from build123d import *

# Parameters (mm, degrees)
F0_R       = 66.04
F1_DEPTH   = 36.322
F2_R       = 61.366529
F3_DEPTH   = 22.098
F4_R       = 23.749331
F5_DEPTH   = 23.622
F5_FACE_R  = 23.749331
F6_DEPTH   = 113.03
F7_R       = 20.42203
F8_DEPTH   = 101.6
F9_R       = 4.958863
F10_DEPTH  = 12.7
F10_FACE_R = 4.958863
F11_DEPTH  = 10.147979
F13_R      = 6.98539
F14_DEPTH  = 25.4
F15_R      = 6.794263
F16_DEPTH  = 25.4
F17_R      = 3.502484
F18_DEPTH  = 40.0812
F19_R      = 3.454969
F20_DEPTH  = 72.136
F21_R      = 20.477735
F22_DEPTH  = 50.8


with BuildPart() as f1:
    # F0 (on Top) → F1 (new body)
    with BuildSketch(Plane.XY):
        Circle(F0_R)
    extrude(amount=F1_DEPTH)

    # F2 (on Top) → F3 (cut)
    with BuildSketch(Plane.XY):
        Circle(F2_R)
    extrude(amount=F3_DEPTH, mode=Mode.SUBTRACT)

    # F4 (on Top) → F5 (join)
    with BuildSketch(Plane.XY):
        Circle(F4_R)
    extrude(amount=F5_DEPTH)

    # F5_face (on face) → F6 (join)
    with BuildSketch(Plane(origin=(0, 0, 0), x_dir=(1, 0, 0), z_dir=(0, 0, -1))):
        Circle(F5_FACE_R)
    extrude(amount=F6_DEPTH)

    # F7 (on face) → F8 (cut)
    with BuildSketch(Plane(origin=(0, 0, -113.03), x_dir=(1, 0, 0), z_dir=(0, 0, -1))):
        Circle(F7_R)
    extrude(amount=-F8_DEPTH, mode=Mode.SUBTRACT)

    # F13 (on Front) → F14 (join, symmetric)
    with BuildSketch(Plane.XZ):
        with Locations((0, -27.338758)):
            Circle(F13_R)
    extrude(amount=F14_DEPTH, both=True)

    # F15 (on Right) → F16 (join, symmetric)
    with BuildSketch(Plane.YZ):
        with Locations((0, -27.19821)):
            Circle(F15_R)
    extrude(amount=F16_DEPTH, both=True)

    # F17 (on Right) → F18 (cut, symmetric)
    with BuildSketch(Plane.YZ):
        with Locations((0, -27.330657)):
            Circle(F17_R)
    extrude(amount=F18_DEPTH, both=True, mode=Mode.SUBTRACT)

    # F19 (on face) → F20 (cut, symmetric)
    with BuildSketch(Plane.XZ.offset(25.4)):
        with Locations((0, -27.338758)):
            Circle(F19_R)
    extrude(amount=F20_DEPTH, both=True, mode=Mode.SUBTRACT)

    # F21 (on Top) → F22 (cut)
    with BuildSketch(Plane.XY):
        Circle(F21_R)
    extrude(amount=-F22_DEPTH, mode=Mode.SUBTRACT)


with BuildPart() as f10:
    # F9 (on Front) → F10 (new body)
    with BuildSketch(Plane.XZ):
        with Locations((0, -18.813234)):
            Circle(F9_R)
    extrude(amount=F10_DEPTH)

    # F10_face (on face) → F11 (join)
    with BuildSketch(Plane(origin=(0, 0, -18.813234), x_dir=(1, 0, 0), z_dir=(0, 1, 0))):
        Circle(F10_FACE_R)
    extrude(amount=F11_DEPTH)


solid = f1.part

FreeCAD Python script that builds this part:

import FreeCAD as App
import Part
import Sketcher
from FreeCAD import Vector
Q = App.Units.Quantity

doc = App.newDocument("Part")
params = doc.addObject("Spreadsheet::Sheet", "Params")
for row, (alias, value) in enumerate([
    ("sketch1_diameter", "5.2 in"),
    ("pad1_length", "1.43 in"),
    ("pocket1_length", "0.87 in"),
    ("pad2_length", "0.93 in"),
    ("pad3_length", "4.45 in"),
    ("pocket2_length", "4 in"),
    ("pad4_length", "2 in"),
    ("pad5_length", "2 in"),
    ("pocket3_length", "3.156 in"),
    ("pocket4_length", "5.68 in"),
    ("pocket5_length", "2 in"),
    ("pad6_length", "0.5 in"),
    ("pad7_length", "10.147979 mm"),
], start=1):
    params.set(f"A{row}", alias)
    params.set(f"B{row}", "=" + value)
    params.setAlias(f"B{row}", alias)

body = doc.addObject("PartDesign::Body", "Body")

sketch1 = body.newObject("Sketcher::SketchObject", "Sketch")
sketch1.AttachmentSupport = (doc.getObject("XY_Plane"), [""])
sketch1.MapMode = "FlatFace"
sketch1.addGeometry(Part.Circle(Vector(0, 0, 0), Vector(0, 0, 1), 66.04), False)
sketch1.addConstraint([
    Sketcher.Constraint("Coincident", 0, 3, -1, 1),
    Sketcher.Constraint("Diameter", 0, Q("5.2 in")),
])
sketch1.setExpression("Constraints[1]", "Params.sketch1_diameter")
pad1 = body.newObject("PartDesign::Pad", "Pad")
pad1.Profile = sketch1
pad1.setExpression("Length", "Params.pad1_length")

sketch2 = body.newObject("Sketcher::SketchObject", "Sketch001")
sketch2.AttachmentSupport = (doc.getObject("XY_Plane"), [""])
sketch2.MapMode = "FlatFace"
sketch2.addGeometry(Part.Circle(Vector(0, 0, 0), Vector(0, 0, 1), 61.366529), False)
sketch2.addConstraint([
    Sketcher.Constraint("Coincident", 0, 3, -1, 1),
    Sketcher.Constraint("Diameter", 0, 122.733058),
])
pocket1 = body.newObject("PartDesign::Pocket", "Pocket")
pocket1.Profile = sketch2
pocket1.setExpression("Length", "Params.pocket1_length")
pocket1.Reversed = True

sketch3 = body.newObject("Sketcher::SketchObject", "Sketch002")
sketch3.AttachmentSupport = (doc.getObject("XY_Plane"), [""])
sketch3.MapMode = "FlatFace"
sketch3.addGeometry(Part.Circle(Vector(0, 0, 0), Vector(0, 0, 1), 23.749331), False)
sketch3.addConstraint([
    Sketcher.Constraint("Coincident", 0, 3, -1, 1),
    Sketcher.Constraint("Diameter", 0, 47.498662),
])
pad2 = body.newObject("PartDesign::Pad", "Pad001")
pad2.Profile = sketch3
pad2.setExpression("Length", "Params.pad2_length")

sketch4 = body.newObject("Sketcher::SketchObject", "Sketch003")
sketch4.AttachmentSupport = (doc.getObject("XY_Plane"), [""])
sketch4.MapMode = "FlatFace"
sketch4.addGeometry(Part.Circle(Vector(0, 0, 0), Vector(0, 0, 1), 23.749331), False)
sketch4.addConstraint([
    Sketcher.Constraint("Coincident", 0, 3, -1, 1),
    Sketcher.Constraint("Diameter", 0, 47.498662),
])
pad3 = body.newObject("PartDesign::Pad", "Pad002")
pad3.Profile = sketch4
pad3.setExpression("Length", "Params.pad3_length")
pad3.Reversed = True

sketch5 = body.newObject("Sketcher::SketchObject", "Sketch004")
sketch5.AttachmentSupport = (doc.getObject("XY_Plane"), [""])
sketch5.MapMode = "FlatFace"
sketch5.AttachmentOffset = App.Placement(Vector(0, 0, -4.45 * 25.4), App.Rotation())
sketch5.addGeometry(Part.Circle(Vector(0, 0, 0), Vector(0, 0, 1), 20.42203), False)
sketch5.addConstraint([
    Sketcher.Constraint("Coincident", 0, 3, -1, 1),
    Sketcher.Constraint("Diameter", 0, 40.84406),
])
pocket2 = body.newObject("PartDesign::Pocket", "Pocket001")
pocket2.Profile = sketch5
pocket2.setExpression("Length", "Params.pocket2_length")
pocket2.Reversed = True

sketch6 = body.newObject("Sketcher::SketchObject", "Sketch005")
sketch6.AttachmentSupport = (doc.getObject("XZ_Plane"), [""])
sketch6.MapMode = "FlatFace"
sketch6.addGeometry(Part.Circle(Vector(0, -27.338758, 0), Vector(0, 0, 1), 6.98539), False)
sketch6.addConstraint([
    Sketcher.Constraint("PointOnObject", 0, 3, -2),
    Sketcher.Constraint("Diameter", 0, 13.97078),
    Sketcher.Constraint("DistanceY", 0, 3, -1, 1, 27.338758),
])
pad4 = body.newObject("PartDesign::Pad", "Pad003")
pad4.Profile = sketch6
pad4.setExpression("Length", "Params.pad4_length")
pad4.Midplane = True

sketch7 = body.newObject("Sketcher::SketchObject", "Sketch006")
sketch7.AttachmentSupport = (doc.getObject("YZ_Plane"), [""])
sketch7.MapMode = "FlatFace"
sketch7.addGeometry(Part.Circle(Vector(0, -27.19821, 0), Vector(0, 0, 1), 6.794263), False)
sketch7.addConstraint([
    Sketcher.Constraint("PointOnObject", 0, 3, -2),
    Sketcher.Constraint("Diameter", 0, 13.588526),
    Sketcher.Constraint("DistanceY", 0, 3, -1, 1, 27.19821),
])
pad5 = body.newObject("PartDesign::Pad", "Pad004")
pad5.Profile = sketch7
pad5.setExpression("Length", "Params.pad5_length")
pad5.Midplane = True

sketch8 = body.newObject("Sketcher::SketchObject", "Sketch007")
sketch8.AttachmentSupport = (doc.getObject("YZ_Plane"), [""])
sketch8.MapMode = "FlatFace"
sketch8.addGeometry(Part.Circle(Vector(0, -27.330657, 0), Vector(0, 0, 1), 3.502484), False)
sketch8.addConstraint([
    Sketcher.Constraint("PointOnObject", 0, 3, -2),
    Sketcher.Constraint("Diameter", 0, 7.004968),
    Sketcher.Constraint("DistanceY", 0, 3, -1, 1, 27.330657),
])
pocket3 = body.newObject("PartDesign::Pocket", "Pocket002")
pocket3.Profile = sketch8
pocket3.setExpression("Length", "Params.pocket3_length")
pocket3.Midplane = True

sketch9 = body.newObject("Sketcher::SketchObject", "Sketch008")
sketch9.AttachmentSupport = (doc.getObject("XZ_Plane"), [""])
sketch9.MapMode = "FlatFace"
sketch9.AttachmentOffset = App.Placement(Vector(0, 0, 1 * 25.4), App.Rotation())
sketch9.addGeometry(Part.Circle(Vector(0, -27.338758, 0), Vector(0, 0, 1), 3.454969), False)
sketch9.addConstraint([
    Sketcher.Constraint("PointOnObject", 0, 3, -2),
    Sketcher.Constraint("Diameter", 0, 6.909938),
    Sketcher.Constraint("DistanceY", 0, 3, -1, 1, 27.338758),
])
pocket4 = body.newObject("PartDesign::Pocket", "Pocket003")
pocket4.Profile = sketch9
pocket4.setExpression("Length", "Params.pocket4_length")
pocket4.Midplane = True

sketch10 = body.newObject("Sketcher::SketchObject", "Sketch009")
sketch10.AttachmentSupport = (doc.getObject("XY_Plane"), [""])
sketch10.MapMode = "FlatFace"
sketch10.addGeometry(Part.Circle(Vector(0, 0, 0), Vector(0, 0, 1), 20.477735), False)
sketch10.addConstraint([
    Sketcher.Constraint("Coincident", 0, 3, -1, 1),
    Sketcher.Constraint("Diameter", 0, 40.95547),
])
pocket5 = body.newObject("PartDesign::Pocket", "Pocket004")
pocket5.Profile = sketch10
pocket5.setExpression("Length", "Params.pocket5_length")
body2 = doc.addObject("PartDesign::Body", "Body001")

sketch11 = body2.newObject("Sketcher::SketchObject", "Sketch010")
sketch11.AttachmentSupport = (doc.getObject("XZ_Plane001"), [""])
sketch11.MapMode = "FlatFace"
sketch11.addGeometry(Part.Circle(Vector(0, -18.813234, 0), Vector(0, 0, 1), 4.958863), False)
sketch11.addConstraint([
    Sketcher.Constraint("PointOnObject", 0, 3, -2),
    Sketcher.Constraint("Diameter", 0, 9.917726),
    Sketcher.Constraint("DistanceY", 0, 3, -1, 1, 18.813234),
])
pad6 = body2.newObject("PartDesign::Pad", "Pad005")
pad6.Profile = sketch11
pad6.setExpression("Length", "Params.pad6_length")

sketch12 = body2.newObject("Sketcher::SketchObject", "Sketch011")
sketch12.AttachmentSupport = (doc.getObject("XZ_Plane001"), [""])
sketch12.MapMode = "FlatFace"
sketch12.addGeometry(Part.Circle(Vector(0, -18.813234, 0), Vector(0, 0, 1), 4.958863), False)
sketch12.addConstraint([
    Sketcher.Constraint("PointOnObject", 0, 3, -2),
    Sketcher.Constraint("Diameter", 0, 9.917726),
    Sketcher.Constraint("DistanceY", 0, 3, -1, 1, 18.813234),
])
pad7 = body2.newObject("PartDesign::Pad", "Pad006")
pad7.Profile = sketch12
pad7.setExpression("Length", "Params.pad7_length")
pad7.Reversed = True
body2.Visibility = False

doc.recompute()
